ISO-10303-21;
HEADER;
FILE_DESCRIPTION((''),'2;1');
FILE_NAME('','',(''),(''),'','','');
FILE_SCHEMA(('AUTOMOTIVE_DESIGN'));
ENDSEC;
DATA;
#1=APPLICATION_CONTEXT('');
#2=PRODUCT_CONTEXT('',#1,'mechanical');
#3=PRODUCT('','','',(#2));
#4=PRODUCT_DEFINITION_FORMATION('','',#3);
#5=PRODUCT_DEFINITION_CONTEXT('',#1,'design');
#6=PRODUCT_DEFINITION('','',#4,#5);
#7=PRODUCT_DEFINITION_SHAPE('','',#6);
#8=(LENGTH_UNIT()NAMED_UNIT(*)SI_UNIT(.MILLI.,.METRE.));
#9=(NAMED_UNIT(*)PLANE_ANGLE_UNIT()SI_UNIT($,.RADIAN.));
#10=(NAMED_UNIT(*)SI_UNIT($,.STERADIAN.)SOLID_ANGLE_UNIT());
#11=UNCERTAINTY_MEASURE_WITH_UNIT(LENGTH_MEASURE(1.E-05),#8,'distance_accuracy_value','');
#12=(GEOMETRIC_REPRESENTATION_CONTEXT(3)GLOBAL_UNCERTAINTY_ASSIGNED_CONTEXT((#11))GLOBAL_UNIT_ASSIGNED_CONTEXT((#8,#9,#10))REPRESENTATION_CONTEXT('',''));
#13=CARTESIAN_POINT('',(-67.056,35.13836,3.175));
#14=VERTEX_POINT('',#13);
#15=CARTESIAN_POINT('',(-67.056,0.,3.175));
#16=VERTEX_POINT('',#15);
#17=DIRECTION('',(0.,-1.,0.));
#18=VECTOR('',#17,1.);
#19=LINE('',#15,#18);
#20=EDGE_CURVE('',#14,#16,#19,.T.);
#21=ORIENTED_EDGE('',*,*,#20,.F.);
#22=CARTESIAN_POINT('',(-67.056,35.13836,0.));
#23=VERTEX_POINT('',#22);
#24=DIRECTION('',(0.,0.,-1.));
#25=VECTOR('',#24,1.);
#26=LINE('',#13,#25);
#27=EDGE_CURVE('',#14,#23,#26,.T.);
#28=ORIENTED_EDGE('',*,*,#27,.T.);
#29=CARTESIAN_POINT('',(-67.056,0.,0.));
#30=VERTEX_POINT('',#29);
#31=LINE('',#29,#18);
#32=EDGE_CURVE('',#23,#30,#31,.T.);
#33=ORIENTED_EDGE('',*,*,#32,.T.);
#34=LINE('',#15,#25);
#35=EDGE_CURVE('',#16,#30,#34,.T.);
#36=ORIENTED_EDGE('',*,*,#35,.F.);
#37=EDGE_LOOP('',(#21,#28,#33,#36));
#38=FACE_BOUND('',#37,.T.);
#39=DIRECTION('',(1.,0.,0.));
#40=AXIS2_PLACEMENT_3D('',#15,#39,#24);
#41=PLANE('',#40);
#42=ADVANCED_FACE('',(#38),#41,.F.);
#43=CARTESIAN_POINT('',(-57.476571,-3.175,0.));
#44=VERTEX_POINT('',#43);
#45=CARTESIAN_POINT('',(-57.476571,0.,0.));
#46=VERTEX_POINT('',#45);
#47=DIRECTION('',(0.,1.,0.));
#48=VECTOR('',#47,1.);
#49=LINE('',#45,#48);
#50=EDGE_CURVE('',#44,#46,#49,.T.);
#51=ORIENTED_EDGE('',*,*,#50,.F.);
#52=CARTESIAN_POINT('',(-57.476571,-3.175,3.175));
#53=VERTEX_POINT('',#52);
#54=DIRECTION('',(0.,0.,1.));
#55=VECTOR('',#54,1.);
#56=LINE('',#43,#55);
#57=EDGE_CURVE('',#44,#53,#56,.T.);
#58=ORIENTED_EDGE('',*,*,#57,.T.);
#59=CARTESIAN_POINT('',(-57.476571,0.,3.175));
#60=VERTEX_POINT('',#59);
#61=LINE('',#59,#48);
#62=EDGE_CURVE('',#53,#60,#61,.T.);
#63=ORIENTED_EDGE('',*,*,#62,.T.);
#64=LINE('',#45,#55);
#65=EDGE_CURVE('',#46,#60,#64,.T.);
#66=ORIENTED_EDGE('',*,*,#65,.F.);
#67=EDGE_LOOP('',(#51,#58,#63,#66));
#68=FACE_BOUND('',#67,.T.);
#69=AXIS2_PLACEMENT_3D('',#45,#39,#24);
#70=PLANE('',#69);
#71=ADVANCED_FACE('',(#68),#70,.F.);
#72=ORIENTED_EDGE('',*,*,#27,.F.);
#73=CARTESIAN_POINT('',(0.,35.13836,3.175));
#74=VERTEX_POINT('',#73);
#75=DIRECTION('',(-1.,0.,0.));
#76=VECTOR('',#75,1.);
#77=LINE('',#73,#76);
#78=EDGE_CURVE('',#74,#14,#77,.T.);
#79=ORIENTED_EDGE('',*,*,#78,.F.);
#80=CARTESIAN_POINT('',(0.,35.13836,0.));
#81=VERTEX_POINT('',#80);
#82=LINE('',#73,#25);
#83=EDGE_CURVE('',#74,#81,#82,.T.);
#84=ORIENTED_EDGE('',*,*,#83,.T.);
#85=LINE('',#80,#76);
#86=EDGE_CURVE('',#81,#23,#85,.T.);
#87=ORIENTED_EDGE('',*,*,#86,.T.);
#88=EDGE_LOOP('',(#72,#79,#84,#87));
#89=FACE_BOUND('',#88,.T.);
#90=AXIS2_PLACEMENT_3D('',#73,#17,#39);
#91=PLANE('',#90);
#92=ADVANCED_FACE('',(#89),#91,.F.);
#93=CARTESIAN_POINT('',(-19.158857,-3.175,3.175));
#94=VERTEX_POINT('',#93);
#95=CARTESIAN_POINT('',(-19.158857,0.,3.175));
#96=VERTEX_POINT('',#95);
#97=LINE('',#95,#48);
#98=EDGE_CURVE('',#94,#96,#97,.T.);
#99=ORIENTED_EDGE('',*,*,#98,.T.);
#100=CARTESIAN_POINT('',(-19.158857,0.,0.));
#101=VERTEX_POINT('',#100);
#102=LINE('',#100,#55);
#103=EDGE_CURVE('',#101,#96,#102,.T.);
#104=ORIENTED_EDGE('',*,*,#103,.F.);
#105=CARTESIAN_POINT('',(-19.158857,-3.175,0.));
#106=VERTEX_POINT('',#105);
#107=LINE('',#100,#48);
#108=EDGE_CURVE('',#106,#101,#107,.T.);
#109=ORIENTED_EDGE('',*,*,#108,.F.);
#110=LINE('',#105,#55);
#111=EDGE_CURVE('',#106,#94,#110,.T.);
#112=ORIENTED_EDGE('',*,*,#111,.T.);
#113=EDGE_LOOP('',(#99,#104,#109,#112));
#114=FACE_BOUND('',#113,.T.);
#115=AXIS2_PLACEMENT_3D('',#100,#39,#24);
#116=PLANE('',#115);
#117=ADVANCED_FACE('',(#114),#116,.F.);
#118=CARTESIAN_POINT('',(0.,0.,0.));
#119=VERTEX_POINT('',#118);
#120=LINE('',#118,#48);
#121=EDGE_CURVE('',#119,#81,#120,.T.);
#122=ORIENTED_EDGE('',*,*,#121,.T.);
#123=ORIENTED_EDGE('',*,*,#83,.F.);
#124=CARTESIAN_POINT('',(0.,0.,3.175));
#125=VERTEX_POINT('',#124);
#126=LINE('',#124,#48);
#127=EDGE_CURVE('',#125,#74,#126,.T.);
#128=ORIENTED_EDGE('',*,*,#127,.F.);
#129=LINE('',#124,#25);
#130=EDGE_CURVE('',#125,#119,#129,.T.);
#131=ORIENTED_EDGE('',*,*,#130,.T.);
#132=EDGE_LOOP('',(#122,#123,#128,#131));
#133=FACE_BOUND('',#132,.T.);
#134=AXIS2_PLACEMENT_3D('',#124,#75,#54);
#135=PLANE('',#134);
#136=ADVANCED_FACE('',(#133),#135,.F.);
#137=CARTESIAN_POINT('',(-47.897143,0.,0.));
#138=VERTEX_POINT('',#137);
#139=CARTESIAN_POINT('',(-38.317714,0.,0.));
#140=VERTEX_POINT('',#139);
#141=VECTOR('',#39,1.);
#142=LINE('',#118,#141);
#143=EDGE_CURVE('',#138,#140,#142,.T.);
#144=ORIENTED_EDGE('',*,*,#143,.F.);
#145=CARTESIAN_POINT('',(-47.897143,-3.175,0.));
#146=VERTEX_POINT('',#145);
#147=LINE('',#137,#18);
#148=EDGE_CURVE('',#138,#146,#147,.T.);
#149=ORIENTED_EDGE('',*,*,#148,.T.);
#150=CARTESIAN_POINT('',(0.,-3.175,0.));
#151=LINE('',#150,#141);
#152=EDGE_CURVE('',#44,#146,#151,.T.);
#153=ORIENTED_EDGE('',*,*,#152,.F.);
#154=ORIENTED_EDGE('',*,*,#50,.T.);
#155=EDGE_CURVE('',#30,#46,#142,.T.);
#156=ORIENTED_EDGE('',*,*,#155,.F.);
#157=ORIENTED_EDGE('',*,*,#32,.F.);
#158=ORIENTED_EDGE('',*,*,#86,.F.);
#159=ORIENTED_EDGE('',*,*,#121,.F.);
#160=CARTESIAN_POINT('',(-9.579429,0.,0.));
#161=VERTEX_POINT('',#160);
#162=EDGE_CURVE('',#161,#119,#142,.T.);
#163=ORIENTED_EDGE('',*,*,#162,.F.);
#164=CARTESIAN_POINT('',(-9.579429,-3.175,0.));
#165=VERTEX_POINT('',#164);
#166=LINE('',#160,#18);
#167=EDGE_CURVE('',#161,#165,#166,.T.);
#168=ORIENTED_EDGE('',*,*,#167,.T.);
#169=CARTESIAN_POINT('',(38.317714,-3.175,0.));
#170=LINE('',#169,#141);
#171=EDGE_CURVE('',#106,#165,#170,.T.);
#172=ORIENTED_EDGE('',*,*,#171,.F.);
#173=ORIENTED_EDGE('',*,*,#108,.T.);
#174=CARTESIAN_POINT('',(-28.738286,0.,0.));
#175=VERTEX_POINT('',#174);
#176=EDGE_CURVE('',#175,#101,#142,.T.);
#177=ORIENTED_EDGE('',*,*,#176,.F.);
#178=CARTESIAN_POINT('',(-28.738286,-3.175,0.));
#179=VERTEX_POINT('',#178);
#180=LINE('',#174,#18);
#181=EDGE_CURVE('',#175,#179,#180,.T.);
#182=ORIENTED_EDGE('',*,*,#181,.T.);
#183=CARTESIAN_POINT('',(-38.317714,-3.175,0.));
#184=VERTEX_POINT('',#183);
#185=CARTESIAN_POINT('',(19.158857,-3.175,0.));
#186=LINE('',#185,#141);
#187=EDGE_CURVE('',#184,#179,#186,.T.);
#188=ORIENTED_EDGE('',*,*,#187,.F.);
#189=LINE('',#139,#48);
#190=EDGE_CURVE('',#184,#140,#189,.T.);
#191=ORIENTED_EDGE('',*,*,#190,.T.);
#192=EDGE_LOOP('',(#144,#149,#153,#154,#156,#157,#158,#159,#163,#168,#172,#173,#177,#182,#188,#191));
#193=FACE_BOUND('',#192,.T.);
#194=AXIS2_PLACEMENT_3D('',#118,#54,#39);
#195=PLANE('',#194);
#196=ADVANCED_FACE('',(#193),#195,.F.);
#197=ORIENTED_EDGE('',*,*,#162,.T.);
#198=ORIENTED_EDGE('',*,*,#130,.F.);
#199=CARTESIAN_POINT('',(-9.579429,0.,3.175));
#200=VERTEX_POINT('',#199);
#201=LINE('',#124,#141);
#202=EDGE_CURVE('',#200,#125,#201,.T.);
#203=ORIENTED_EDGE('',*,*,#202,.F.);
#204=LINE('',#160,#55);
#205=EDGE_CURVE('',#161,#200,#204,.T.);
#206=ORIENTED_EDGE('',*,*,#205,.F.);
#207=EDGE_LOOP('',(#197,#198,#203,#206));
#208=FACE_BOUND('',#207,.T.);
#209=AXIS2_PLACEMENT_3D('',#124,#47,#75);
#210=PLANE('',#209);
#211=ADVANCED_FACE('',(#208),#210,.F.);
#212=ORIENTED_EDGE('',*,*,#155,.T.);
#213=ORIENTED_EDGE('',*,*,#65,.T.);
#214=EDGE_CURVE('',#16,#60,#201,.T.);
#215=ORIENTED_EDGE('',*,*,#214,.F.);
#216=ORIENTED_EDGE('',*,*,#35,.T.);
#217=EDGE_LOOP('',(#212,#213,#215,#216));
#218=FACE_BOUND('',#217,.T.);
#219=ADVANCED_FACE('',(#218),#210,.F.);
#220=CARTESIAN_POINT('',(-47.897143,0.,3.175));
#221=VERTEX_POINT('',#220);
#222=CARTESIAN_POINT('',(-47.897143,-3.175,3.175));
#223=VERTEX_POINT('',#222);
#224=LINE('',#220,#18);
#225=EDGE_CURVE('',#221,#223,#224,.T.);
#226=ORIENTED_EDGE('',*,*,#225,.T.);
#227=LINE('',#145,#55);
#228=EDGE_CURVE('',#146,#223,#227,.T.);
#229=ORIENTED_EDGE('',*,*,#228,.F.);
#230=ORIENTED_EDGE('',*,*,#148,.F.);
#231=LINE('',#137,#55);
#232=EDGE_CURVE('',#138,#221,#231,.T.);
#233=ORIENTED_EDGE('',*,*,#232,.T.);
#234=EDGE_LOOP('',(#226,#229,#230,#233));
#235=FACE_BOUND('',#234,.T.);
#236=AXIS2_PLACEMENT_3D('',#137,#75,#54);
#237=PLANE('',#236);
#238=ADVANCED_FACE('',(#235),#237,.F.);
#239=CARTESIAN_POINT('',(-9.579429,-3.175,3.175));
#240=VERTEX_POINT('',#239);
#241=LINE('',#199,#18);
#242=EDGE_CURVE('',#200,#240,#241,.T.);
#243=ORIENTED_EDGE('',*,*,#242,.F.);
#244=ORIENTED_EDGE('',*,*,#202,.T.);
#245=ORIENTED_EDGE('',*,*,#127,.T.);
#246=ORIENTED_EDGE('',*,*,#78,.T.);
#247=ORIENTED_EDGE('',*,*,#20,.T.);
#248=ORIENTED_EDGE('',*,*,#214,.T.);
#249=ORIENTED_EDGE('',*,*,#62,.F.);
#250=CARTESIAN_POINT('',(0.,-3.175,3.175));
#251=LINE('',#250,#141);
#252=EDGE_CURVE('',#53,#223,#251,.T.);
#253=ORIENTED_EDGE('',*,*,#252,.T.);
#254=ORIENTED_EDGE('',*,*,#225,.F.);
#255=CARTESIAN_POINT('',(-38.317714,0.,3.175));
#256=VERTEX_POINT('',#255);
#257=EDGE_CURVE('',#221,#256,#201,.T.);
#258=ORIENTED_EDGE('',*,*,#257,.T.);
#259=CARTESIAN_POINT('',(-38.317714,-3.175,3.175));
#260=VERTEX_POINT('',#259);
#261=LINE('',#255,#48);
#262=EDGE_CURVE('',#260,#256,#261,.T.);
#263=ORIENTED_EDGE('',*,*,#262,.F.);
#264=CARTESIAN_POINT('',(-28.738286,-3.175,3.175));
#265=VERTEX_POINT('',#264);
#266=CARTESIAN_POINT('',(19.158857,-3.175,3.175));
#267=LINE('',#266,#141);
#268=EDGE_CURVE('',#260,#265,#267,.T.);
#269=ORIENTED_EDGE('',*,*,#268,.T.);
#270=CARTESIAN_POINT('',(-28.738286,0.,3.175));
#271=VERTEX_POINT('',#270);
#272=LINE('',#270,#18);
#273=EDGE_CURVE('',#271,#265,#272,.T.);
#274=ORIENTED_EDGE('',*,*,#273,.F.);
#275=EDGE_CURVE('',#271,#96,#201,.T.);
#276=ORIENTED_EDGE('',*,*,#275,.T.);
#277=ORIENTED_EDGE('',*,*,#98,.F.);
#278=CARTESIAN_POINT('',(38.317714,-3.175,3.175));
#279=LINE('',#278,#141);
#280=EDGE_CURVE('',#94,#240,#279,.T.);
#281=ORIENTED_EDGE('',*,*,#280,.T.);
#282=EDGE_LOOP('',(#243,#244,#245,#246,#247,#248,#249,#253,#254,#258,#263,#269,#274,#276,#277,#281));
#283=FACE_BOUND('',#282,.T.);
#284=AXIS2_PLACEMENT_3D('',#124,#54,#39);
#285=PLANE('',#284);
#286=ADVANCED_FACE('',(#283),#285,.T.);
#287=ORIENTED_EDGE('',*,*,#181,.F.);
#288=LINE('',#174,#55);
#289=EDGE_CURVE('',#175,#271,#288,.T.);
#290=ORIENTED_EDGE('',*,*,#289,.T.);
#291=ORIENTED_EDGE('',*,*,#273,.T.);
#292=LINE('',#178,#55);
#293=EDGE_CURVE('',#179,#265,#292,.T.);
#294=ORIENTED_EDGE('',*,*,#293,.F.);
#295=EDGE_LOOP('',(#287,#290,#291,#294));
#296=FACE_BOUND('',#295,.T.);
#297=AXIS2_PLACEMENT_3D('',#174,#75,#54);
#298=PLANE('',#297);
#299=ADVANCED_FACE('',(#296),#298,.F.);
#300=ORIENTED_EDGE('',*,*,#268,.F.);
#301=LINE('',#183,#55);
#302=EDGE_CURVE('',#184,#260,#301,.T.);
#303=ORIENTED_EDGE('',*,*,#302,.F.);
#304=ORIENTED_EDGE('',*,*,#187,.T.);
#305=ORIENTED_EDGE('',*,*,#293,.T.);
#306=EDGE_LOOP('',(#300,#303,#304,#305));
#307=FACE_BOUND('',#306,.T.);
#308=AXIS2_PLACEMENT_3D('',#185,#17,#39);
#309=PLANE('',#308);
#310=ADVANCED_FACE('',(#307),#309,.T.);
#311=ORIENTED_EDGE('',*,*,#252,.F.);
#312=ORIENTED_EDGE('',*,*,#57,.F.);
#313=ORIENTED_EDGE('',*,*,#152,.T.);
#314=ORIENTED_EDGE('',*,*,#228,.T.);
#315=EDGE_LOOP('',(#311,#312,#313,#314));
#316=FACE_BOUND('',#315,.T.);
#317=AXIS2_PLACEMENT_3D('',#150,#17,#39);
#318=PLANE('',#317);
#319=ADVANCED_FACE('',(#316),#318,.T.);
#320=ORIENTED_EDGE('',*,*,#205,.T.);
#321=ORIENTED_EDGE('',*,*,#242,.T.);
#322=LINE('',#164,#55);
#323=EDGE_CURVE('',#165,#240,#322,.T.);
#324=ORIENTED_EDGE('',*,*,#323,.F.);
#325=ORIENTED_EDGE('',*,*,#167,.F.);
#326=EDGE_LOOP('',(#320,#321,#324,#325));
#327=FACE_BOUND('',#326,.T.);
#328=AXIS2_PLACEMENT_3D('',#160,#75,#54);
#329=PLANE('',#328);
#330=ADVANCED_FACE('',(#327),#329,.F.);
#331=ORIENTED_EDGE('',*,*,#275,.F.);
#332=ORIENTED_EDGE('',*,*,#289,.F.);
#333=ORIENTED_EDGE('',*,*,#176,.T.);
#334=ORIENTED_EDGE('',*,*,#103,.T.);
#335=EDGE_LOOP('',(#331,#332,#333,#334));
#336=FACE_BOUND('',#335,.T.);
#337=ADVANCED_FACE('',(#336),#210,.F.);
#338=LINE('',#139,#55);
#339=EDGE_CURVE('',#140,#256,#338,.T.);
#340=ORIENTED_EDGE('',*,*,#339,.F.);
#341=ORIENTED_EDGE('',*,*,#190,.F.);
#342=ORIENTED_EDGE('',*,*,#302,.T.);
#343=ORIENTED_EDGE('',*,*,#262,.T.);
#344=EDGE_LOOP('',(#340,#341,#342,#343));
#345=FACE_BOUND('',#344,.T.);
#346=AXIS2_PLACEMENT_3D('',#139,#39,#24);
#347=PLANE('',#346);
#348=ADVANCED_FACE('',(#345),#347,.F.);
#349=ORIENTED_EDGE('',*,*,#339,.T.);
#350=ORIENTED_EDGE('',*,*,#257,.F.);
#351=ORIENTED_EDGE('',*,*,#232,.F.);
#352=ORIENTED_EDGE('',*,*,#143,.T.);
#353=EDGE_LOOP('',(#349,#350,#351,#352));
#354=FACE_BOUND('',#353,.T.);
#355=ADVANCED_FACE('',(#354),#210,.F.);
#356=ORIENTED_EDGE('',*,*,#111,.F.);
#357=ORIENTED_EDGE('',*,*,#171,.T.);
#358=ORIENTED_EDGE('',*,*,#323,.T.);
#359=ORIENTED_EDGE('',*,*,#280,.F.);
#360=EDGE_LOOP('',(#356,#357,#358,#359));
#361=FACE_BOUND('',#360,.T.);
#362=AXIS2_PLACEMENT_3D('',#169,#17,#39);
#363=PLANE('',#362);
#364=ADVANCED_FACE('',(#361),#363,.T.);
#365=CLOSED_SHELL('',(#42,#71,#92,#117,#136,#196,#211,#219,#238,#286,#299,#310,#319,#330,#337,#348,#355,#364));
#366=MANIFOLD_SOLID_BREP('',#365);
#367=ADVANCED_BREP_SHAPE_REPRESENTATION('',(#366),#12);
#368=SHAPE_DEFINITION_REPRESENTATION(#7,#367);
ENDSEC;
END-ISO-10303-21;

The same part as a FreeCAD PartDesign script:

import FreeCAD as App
import Part
import Sketcher
Q = App.Units.Quantity

doc = App.newDocument("Part")
params = doc.addObject("Spreadsheet::Sheet", "Params")
for row, (alias, value) in enumerate([
    ("sketch1_width", "2.64 in"),
    ("pad1_length", "0.125 in"),
    ("sketch2_height", "0.125 in"),
    ("pad2_length", "0.125 in"),
    ("linearpattern_pitch", "19.158857 mm"),
], start=1):
    params.set(f"A{row}", alias)
    params.set(f"B{row}", "=" + value)
    params.setAlias(f"B{row}", alias)

body = doc.addObject("PartDesign::Body", "Body")

# Sketch on XY plane
sketch1 = doc.addObject("Sketcher::SketchObject", "Sketch")
body.addObject(sketch1)
sketch1.AttachmentSupport = (doc.XY_Plane, [""])
sketch1.MapMode = "FlatFace"
sketch1.addGeometry([
    Part.LineSegment(App.Vector(-67, 35, 0), App.Vector(-67, 0, 0)),
    Part.LineSegment(App.Vector(-67, 0, 0), App.Vector(0, 0, 0)),
    Part.LineSegment(App.Vector(0, 0, 0), App.Vector(0, 35, 0)),
    Part.LineSegment(App.Vector(0, 35, 0), App.Vector(-67, 35, 0)),
], False)
sketch1.addConstraint([
    Sketcher.Constraint("Coincident", 0, 2, 1, 1),
    Sketcher.Constraint("Coincident", 1, 2, 2, 1),
    Sketcher.Constraint("Coincident", 2, 2, 3, 1),
    Sketcher.Constraint("Coincident", 3, 2, 0, 1),
    Sketcher.Constraint("Vertical", 0),
    Sketcher.Constraint("Horizontal", 1),
    Sketcher.Constraint("Vertical", 2),
    Sketcher.Constraint("Horizontal", 3),
    Sketcher.Constraint("Coincident", 1, 2, -1, 1),
    Sketcher.Constraint("DistanceX", 1, 1, 1, 2, Q("2.64 in")),
    Sketcher.Constraint("DistanceY", 0, 2, 0, 1, Q("1.3834 in")),
])
sketch1.setExpression("Constraints[9]", "Params.sketch1_width")
pad1 = doc.addObject("PartDesign::Pad", "Pad")
body.addObject(pad1)
pad1.Profile = sketch1
pad1.setExpression("Length", "Params.pad1_length")

# Sketch on XY plane
sketch2 = doc.addObject("Sketcher::SketchObject", "Sketch001")
body.addObject(sketch2)
sketch2.AttachmentSupport = (doc.XY_Plane, [""])
sketch2.MapMode = "FlatFace"
sketch2.AttachmentOffset = App.Placement(App.Vector(0, 0, 0.125 * 25.4), App.Rotation())
sketch2.addGeometry([
    Part.LineSegment(App.Vector(-57.5, 0, 0), App.Vector(-57.5, -3.2, 0)),
    Part.LineSegment(App.Vector(-57.5, -3.2, 0), App.Vector(-47.9, -3.2, 0)),
    Part.LineSegment(App.Vector(-47.9, -3.2, 0), App.Vector(-47.9, 0, 0)),
    Part.LineSegment(App.Vector(-47.9, 0, 0), App.Vector(-57.5, 0, 0)),
], False)
sketch2.addConstraint([
    Sketcher.Constraint("Coincident", 0, 2, 1, 1),
    Sketcher.Constraint("Coincident", 1, 2, 2, 1),
    Sketcher.Constraint("Coincident", 2, 2, 3, 1),
    Sketcher.Constraint("Coincident", 3, 2, 0, 1),
    Sketcher.Constraint("Vertical", 0),
    Sketcher.Constraint("Horizontal", 1),
    Sketcher.Constraint("Vertical", 2),
    Sketcher.Constraint("Horizontal", 3),
    Sketcher.Constraint("PointOnObject", 2, 2, -1),
    Sketcher.Constraint("DistanceY", 0, 2, 0, 1, Q("0.125 in")),
    Sketcher.Constraint("DistanceX", 1, 1, 1, 2, Q("9.579429 mm")),
    Sketcher.Constraint("DistanceX", 0, 2, -1, 1, Q("57.476571 mm")),
])
sketch2.setExpression("Constraints[9]", "Params.sketch2_height")
pad2 = doc.addObject("PartDesign::Pad", "Pad001")
body.addObject(pad2)
pad2.Profile = sketch2
pad2.setExpression("Length", "Params.pad2_length")
pad2.Reversed = True
doc.recompute()

linearpattern = doc.addObject("PartDesign::LinearPattern", "LinearPattern")
body.addObject(linearpattern)
linearpattern.Originals = [pad2]
linearpattern.Direction = (doc.X_Axis, [""])
linearpattern.Mode = "offset"
linearpattern.setExpression("Offset", "Params.linearpattern_pitch")
linearpattern.Occurrences = 3
body.Tip = linearpattern

doc.recompute()
